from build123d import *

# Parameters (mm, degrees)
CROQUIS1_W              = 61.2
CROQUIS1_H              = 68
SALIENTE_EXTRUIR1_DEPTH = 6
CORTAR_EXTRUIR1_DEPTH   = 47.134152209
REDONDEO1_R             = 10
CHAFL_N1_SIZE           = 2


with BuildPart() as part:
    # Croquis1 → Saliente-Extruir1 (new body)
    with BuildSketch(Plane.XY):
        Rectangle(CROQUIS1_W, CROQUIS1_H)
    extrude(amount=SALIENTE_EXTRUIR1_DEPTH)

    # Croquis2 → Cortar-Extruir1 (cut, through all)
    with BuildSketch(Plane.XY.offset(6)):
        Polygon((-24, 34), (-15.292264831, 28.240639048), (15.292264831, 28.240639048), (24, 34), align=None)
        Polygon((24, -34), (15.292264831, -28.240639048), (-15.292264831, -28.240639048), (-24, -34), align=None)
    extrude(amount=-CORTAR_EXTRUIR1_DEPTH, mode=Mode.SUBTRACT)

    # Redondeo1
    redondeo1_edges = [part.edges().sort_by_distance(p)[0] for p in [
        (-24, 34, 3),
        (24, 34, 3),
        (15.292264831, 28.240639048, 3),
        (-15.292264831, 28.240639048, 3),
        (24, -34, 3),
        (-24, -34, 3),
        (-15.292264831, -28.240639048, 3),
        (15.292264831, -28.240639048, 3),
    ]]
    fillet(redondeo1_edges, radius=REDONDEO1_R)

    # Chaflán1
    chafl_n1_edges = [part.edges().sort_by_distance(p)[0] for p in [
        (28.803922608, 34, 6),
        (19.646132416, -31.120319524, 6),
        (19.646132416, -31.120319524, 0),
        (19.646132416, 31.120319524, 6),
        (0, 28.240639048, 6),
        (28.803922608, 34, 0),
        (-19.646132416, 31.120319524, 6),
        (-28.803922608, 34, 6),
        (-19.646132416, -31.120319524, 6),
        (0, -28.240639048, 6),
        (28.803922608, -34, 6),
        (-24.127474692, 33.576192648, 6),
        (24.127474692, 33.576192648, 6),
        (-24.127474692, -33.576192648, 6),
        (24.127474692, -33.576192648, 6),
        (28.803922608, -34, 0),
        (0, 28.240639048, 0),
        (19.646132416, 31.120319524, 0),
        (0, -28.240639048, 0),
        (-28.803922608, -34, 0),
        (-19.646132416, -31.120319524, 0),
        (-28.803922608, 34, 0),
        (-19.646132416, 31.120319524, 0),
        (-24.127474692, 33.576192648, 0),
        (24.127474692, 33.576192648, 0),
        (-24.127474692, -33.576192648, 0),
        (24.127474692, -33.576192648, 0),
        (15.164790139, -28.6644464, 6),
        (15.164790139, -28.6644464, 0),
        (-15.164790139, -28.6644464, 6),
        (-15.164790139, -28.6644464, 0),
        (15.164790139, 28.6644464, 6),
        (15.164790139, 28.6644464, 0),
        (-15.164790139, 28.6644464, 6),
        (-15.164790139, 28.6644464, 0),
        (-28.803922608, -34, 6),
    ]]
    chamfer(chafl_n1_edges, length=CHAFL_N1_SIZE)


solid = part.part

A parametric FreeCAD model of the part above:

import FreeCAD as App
import Part
import Sketcher


def edges_at(feature, points):
    """Names of the edges that pass closest to the given points."""
    edges = feature.Shape.Edges
    near = lambda p: min(range(len(edges)), key=lambda i: edges[i].distToShape(Part.Vertex(*p))[0])
    return sorted({f"Edge{near(p) + 1}" for p in points})


def add_polygon(sketch, points):
    """Adds a closed chain of lines whose ends are joined by coincident constraints."""
    first, n = sketch.GeometryCount, len(points)
    for a, b in zip(points, points[1:] + points[:1]):
        sketch.addGeometry(Part.LineSegment(App.Vector(*a, 0), App.Vector(*b, 0)), False)
    for i in range(n):
        sketch.addConstraint(Sketcher.Constraint("Coincident", first + i, 2, first + (i + 1) % n, 1))

doc = App.newDocument("Part")
body = doc.addObject("PartDesign::Body", "Body")

sketch1 = body.newObject("Sketcher::SketchObject", "Sketch")
sketch1.AttachmentSupport = (doc.getObject("XY_Plane"), [""])
sketch1.MapMode = "FlatFace"
add_polygon(sketch1, [(-31, 34), (-31, -34), (31, -34), (31, 34)])
sketch1.addConstraint(Sketcher.Constraint("Vertical", 0))
sketch1.addConstraint(Sketcher.Constraint("Horizontal", 1))
sketch1.addConstraint(Sketcher.Constraint("Vertical", 2))
sketch1.addConstraint(Sketcher.Constraint("Horizontal", 3))
sketch1.addConstraint(Sketcher.Constraint("Symmetric", 0, 2, 2, 2, -1, 1))
sketch1.addConstraint(Sketcher.Constraint("DistanceY", 0, 2, 0, 1, 68.0))
sketch1.addConstraint(Sketcher.Constraint("DistanceX", 1, 1, 1, 2, 61.2))
pad1 = body.newObject("PartDesign::Pad", "Pad")
pad1.Profile = sketch1
pad1.Length = 6

sketch2 = body.newObject("Sketcher::SketchObject", "Sketch001")
sketch2.AttachmentSupport = (doc.getObject("XY_Plane"), [""])
sketch2.MapMode = "FlatFace"
sketch2.AttachmentOffset = App.Placement(App.Vector(0, 0, 6), App.Rotation())
add_polygon(sketch2, [(-24, 34), (-15, 28), (15, 28), (24, 34)])
add_polygon(sketch2, [(24, -34), (15, -28), (-15, -28), (-24, -34)])
sketch2.addConstraint(Sketcher.Constraint("Horizontal", 1))
sketch2.addConstraint(Sketcher.Constraint("Horizontal", 3))
sketch2.addConstraint(Sketcher.Constraint("Horizontal", 5))
sketch2.addConstraint(Sketcher.Constraint("Horizontal", 7))
sketch2.addConstraint(Sketcher.Constraint("Symmetric", 0, 2, 4, 2, -1, 1))
sketch2.addConstraint(Sketcher.Constraint("Symmetric", 2, 2, 6, 2, -1, 1))
sketch2.addConstraint(Sketcher.Constraint("Parallel", 0, 4))
sketch2.addConstraint(Sketcher.Constraint("Parallel", 2, 6))
sketch2.addConstraint(Sketcher.Constraint("Vertical", 1, 2, 4, 2))
sketch2.addConstraint(Sketcher.Constraint("Vertical", 3, 2, 6, 2))
sketch2.addConstraint(Sketcher.Constraint("DistanceX", 3, 2, 3, 1, 48.0))
sketch2.addConstraint(Sketcher.Constraint("DistanceY", -1, 1, 2, 2, 34.0))
sketch2.addConstraint(Sketcher.Constraint("DistanceX", 1, 1, 1, 2, 30.58453))
sketch2.addConstraint(Sketcher.Constraint("Distance", 0, 10.440062))
pocket1 = body.newObject("PartDesign::Pocket", "Pocket")
pocket1.Profile = sketch2
pocket1.Type = "ThroughAll"
doc.recompute()

fillet = body.newObject("PartDesign::Fillet", "Fillet")
fillet.Base = (pocket1, edges_at(pocket1, [
    (-24, 34, 3),
    (24, 34, 3),
    (15.292, 28.241, 3),
    (-15.292, 28.241, 3),
    (24, -34, 3),
    (-24, -34, 3),
    (-15.292, -28.241, 3),
    (15.292, -28.241, 3),
]))
fillet.Radius = 10
doc.recompute()

chamfer = body.newObject("PartDesign::Chamfer", "Chamfer")
chamfer.Base = (fillet, edges_at(fillet, [
    (28.804, 34, 6),
    (19.646, -31.12, 6),
    (19.646, -31.12, 0),
    (19.646, 31.12, 6),
    (0, 28.241, 6),
    (28.804, 34, 0),
    (-19.646, 31.12, 6),
    (-28.804, 34, 6),
    (-19.646, -31.12, 6),
    (0, -28.241, 6),
    (28.804, -34, 6),
    (-24.127, 33.576, 6),
    (24.127, 33.576, 6),
    (-24.127, -33.576, 6),
    (24.127, -33.576, 6),
    (28.804, -34, 0),
    (0, 28.241, 0),
    (19.646, 31.12, 0),
    (0, -28.241, 0),
    (-28.804, -34, 0),
    (-19.646, -31.12, 0),
    (-28.804, 34, 0),
    (-19.646, 31.12, 0),
    (-24.127, 33.576, 0),
    (24.127, 33.576, 0),
    (-24.127, -33.576, 0),
    (24.127, -33.576, 0),
    (15.165, -28.664, 6),
    (15.165, -28.664, 0),
    (-15.165, -28.664, 6),
    (-15.165, -28.664, 0),
    (15.165, 28.664, 6),
    (15.165, 28.664, 0),
    (-15.165, 28.664, 6),
    (-15.165, 28.664, 0),
    (-28.804, -34, 6),
]))
chamfer.Size = 2

doc.recompute()
